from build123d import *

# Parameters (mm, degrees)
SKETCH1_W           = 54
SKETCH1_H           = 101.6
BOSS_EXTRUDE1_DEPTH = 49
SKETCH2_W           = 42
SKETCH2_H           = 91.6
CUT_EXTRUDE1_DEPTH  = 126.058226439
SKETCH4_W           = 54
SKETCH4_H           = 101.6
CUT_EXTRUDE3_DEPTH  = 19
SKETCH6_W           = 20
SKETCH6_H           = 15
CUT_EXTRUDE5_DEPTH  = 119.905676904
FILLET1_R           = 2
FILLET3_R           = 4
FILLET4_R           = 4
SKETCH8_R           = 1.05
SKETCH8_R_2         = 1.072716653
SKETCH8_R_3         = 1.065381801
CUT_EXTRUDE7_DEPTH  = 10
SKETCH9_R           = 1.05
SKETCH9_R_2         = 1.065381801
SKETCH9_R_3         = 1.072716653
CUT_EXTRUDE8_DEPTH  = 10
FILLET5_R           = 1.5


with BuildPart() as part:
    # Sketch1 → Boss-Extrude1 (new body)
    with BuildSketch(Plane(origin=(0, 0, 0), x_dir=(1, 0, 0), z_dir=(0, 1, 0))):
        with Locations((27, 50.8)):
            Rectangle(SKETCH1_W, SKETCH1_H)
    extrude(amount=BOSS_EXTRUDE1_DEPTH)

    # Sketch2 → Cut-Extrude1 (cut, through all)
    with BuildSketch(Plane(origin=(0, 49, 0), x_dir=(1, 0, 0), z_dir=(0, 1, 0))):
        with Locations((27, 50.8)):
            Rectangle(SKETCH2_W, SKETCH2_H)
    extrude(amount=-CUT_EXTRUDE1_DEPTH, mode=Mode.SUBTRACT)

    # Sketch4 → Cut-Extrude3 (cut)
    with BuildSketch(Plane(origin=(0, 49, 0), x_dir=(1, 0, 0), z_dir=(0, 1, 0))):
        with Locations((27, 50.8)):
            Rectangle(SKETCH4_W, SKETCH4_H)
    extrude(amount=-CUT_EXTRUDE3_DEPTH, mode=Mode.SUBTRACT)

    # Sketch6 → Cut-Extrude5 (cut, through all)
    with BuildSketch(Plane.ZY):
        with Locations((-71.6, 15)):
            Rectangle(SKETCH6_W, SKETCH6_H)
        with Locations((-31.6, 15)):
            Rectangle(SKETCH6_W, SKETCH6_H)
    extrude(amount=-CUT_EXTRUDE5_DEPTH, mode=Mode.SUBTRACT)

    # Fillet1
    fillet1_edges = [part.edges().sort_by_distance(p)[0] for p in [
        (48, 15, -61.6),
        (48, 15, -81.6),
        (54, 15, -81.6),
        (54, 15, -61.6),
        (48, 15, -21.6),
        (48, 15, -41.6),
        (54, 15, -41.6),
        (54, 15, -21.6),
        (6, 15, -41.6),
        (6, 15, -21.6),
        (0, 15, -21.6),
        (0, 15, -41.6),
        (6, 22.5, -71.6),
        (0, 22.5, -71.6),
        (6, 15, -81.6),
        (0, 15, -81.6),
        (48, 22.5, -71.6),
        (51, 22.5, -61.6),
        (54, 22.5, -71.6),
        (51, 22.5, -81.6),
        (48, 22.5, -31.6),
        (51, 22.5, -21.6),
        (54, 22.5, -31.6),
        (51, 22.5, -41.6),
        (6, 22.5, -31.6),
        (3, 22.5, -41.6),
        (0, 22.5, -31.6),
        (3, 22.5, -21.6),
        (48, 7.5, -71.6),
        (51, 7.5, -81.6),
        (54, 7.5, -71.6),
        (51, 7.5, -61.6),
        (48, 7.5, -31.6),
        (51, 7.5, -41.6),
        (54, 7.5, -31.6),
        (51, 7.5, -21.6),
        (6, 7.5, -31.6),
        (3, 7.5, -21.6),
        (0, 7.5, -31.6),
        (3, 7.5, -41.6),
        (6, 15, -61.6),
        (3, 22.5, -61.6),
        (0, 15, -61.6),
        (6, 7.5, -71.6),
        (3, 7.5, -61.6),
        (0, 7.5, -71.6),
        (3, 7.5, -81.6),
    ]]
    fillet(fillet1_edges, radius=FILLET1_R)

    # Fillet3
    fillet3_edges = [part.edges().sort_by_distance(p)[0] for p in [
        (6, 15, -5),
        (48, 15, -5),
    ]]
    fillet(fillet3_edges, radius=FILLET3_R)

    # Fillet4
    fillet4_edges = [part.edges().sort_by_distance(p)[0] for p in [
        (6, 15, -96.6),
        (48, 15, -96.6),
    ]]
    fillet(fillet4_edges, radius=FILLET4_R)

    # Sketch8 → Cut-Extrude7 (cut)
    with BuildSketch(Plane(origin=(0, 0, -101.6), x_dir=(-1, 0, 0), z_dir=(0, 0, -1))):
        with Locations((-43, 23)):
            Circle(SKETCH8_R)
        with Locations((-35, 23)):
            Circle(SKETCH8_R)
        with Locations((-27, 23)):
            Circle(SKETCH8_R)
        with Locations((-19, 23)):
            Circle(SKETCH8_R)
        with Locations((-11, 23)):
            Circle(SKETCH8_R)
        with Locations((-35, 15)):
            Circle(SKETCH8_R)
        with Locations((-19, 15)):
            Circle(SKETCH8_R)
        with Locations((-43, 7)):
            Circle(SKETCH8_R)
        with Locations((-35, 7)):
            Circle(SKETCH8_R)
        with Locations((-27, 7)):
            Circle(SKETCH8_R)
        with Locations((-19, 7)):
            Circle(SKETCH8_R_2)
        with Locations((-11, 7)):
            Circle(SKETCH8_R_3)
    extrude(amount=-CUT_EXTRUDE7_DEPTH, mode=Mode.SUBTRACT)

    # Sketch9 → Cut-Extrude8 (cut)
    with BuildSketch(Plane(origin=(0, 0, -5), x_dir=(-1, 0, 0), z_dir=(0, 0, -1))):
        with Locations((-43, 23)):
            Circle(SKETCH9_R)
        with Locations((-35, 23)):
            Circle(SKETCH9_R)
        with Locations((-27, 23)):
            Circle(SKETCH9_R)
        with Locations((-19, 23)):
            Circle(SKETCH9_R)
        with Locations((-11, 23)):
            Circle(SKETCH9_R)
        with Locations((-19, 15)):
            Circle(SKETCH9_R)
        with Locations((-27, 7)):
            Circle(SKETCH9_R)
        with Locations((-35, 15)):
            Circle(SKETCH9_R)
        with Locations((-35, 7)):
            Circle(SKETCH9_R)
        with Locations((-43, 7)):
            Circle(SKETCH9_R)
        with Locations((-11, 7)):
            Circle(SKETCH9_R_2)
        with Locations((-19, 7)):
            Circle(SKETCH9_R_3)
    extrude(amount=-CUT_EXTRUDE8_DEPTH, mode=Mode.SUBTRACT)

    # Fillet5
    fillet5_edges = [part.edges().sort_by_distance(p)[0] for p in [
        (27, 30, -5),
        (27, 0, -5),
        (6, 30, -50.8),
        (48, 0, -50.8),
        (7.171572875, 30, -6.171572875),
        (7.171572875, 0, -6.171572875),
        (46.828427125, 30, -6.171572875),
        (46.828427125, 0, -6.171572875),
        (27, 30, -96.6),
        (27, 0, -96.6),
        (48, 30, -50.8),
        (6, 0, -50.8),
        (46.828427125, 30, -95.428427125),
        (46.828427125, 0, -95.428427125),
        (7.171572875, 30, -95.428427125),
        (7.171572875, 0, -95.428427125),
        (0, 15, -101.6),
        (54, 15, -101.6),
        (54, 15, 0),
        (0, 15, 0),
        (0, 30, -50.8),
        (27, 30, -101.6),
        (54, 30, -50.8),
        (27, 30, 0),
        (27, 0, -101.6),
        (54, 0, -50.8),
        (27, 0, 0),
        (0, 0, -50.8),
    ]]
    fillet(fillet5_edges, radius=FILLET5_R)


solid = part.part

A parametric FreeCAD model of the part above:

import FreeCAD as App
import Part
import Sketcher
from FreeCAD import Vector
Q = App.Units.Quantity


def edges_at(feature, points):
    """Names of the edges that pass closest to the given points."""
    edges = feature.Shape.Edges
    near = lambda p: min(range(len(edges)), key=lambda i: edges[i].distToShape(Part.Vertex(*p))[0])
    return sorted({f"Edge{near(p) + 1}" for p in points})

doc = App.newDocument("Part")
params = doc.addObject("Spreadsheet::Sheet", "Params")
for row, (alias, value) in enumerate([
    ("sketch1_width", "54 mm"),
    ("sketch1_height", "101.6 mm"),
    ("pad1_length", "49 mm"),
    ("sketch2_width", "42 mm"),
    ("sketch2_height", "91.6 mm"),
    ("sketch3_width", "54 mm"),
    ("sketch3_height", "101.6 mm"),
    ("pocket2_length", "19 mm"),
    ("sketch4_width", "15 mm"),
    ("sketch4_height", "20 mm"),
    ("fillet_radius", "2 mm"),
    ("fillet2_radius", "4 mm"),
    ("fillet3_radius", "4 mm"),
    ("sketch5_diameter", "2.1 mm"),
    ("pocket4_length", "10 mm"),
    ("sketch6_diameter", "2.1 mm"),
    ("pocket5_length", "10 mm"),
    ("fillet4_radius", "1.5 mm"),
], start=1):
    params.set(f"A{row}", alias)
    params.set(f"B{row}", "=" + value)
    params.setAlias(f"B{row}", alias)

body = doc.addObject("PartDesign::Body", "Body")

sketch1 = body.newObject("Sketcher::SketchObject", "Sketch")
sketch1.AttachmentSupport = (doc.getObject("XZ_Plane"), [""])
sketch1.MapMode = "FlatFace"
sketch1.addGeometry(Part.LineSegment(Vector(0, -102, 0), Vector(0, 0, 0)), False)
sketch1.addGeometry(Part.LineSegment(Vector(0, 0, 0), Vector(54, 0, 0)), False)
sketch1.addGeometry(Part.LineSegment(Vector(54, 0, 0), Vector(54, -102, 0)), False)
sketch1.addGeometry(Part.LineSegment(Vector(54, -102, 0), Vector(0, -102, 0)), False)
sketch1.addConstraint(Sketcher.Constraint("Coincident", 0, 2, 1, 1))
sketch1.addConstraint(Sketcher.Constraint("Coincident", 1, 2, 2, 1))
sketch1.addConstraint(Sketcher.Constraint("Coincident", 2, 2, 3, 1))
sketch1.addConstraint(Sketcher.Constraint("Coincident", 3, 2, 0, 1))
sketch1.addConstraint(Sketcher.Constraint("Vertical", 0))
sketch1.addConstraint(Sketcher.Constraint("Horizontal", 1))
sketch1.addConstraint(Sketcher.Constraint("Vertical", 2))
sketch1.addConstraint(Sketcher.Constraint("Horizontal", 3))
sketch1.addConstraint(Sketcher.Constraint("Coincident", 0, 2, -1, 1))
sketch1.addConstraint(Sketcher.Constraint("DistanceX", 1, 1, 1, 2, Q("54 mm")))
sketch1.addConstraint(Sketcher.Constraint("DistanceY", 0, 1, 0, 2, Q("101.6 mm")))
sketch1.setExpression("Constraints[9]", "Params.sketch1_width")
sketch1.setExpression("Constraints[10]", "Params.sketch1_height")
pad1 = body.newObject("PartDesign::Pad", "Pad")
pad1.Profile = sketch1
pad1.setExpression("Length", "Params.pad1_length")
pad1.Reversed = True

sketch2 = body.newObject("Sketcher::SketchObject", "Sketch001")
sketch2.AttachmentSupport = (doc.getObject("XZ_Plane"), [""])
sketch2.MapMode = "FlatFace"
sketch2.AttachmentOffset = App.Placement(Vector(0, 0, -49), App.Rotation())
sketch2.addGeometry(Part.LineSegment(Vector(6, -97, 0), Vector(6, -5, 0)), False)
sketch2.addGeometry(Part.LineSegment(Vector(6, -5, 0), Vector(48, -5, 0)), False)
sketch2.addGeometry(Part.LineSegment(Vector(48, -5, 0), Vector(48, -97, 0)), False)
sketch2.addGeometry(Part.LineSegment(Vector(48, -97, 0), Vector(6, -97, 0)), False)
sketch2.addConstraint(Sketcher.Constraint("Coincident", 0, 2, 1, 1))
sketch2.addConstraint(Sketcher.Constraint("Coincident", 1, 2, 2, 1))
sketch2.addConstraint(Sketcher.Constraint("Coincident", 2, 2, 3, 1))
sketch2.addConstraint(Sketcher.Constraint("Coincident", 3, 2, 0, 1))
sketch2.addConstraint(Sketcher.Constraint("Vertical", 0))
sketch2.addConstraint(Sketcher.Constraint("Horizontal", 1))
sketch2.addConstraint(Sketcher.Constraint("Vertical", 2))
sketch2.addConstraint(Sketcher.Constraint("Horizontal", 3))
sketch2.addConstraint(Sketcher.Constraint("DistanceX", 1, 1, 1, 2, Q("42 mm")))
sketch2.addConstraint(Sketcher.Constraint("DistanceY", 0, 1, 0, 2, Q("91.6 mm")))
sketch2.addConstraint(Sketcher.Constraint("DistanceX", -1, 1, 0, 2, Q("6 mm")))
sketch2.addConstraint(Sketcher.Constraint("DistanceY", 0, 2, -1, 1, Q("5 mm")))
sketch2.setExpression("Constraints[8]", "Params.sketch2_width")
sketch2.setExpression("Constraints[9]", "Params.sketch2_height")
pocket1 = body.newObject("PartDesign::Pocket", "Pocket")
pocket1.Profile = sketch2
pocket1.Type = "ThroughAll"
pocket1.Reversed = True

sketch3 = body.newObject("Sketcher::SketchObject", "Sketch002")
sketch3.AttachmentSupport = (doc.getObject("XZ_Plane"), [""])
sketch3.MapMode = "FlatFace"
sketch3.AttachmentOffset = App.Placement(Vector(0, 0, -49), App.Rotation())
sketch3.addGeometry(Part.LineSegment(Vector(0, -102, 0), Vector(0, 0, 0)), False)
sketch3.addGeometry(Part.LineSegment(Vector(0, 0, 0), Vector(54, 0, 0)), False)
sketch3.addGeometry(Part.LineSegment(Vector(54, 0, 0), Vector(54, -102, 0)), False)
sketch3.addGeometry(Part.LineSegment(Vector(54, -102, 0), Vector(0, -102, 0)), False)
sketch3.addConstraint(Sketcher.Constraint("Coincident", 0, 2, 1, 1))
sketch3.addConstraint(Sketcher.Constraint("Coincident", 1, 2, 2, 1))
sketch3.addConstraint(Sketcher.Constraint("Coincident", 2, 2, 3, 1))
sketch3.addConstraint(Sketcher.Constraint("Coincident", 3, 2, 0, 1))
sketch3.addConstraint(Sketcher.Constraint("Vertical", 0))
sketch3.addConstraint(Sketcher.Constraint("Horizontal", 1))
sketch3.addConstraint(Sketcher.Constraint("Vertical", 2))
sketch3.addConstraint(Sketcher.Constraint("Horizontal", 3))
sketch3.addConstraint(Sketcher.Constraint("Coincident", 0, 2, -1, 1))
sketch3.addConstraint(Sketcher.Constraint("DistanceX", 1, 1, 1, 2, Q("54 mm")))
sketch3.addConstraint(Sketcher.Constraint("DistanceY", 0, 1, 0, 2, Q("101.6 mm")))
sketch3.setExpression("Constraints[9]", "Params.sketch3_width")
sketch3.setExpression("Constraints[10]", "Params.sketch3_height")
pocket2 = body.newObject("PartDesign::Pocket", "Pocket001")
pocket2.Profile = sketch3
pocket2.setExpression("Length", "Params.pocket2_length")
pocket2.Reversed = True

sketch4 = body.newObject("Sketcher::SketchObject", "Sketch003")
sketch4.AttachmentSupport = (doc.getObject("YZ_Plane"), [""])
sketch4.MapMode = "FlatFace"
sketch4.addGeometry(Part.LineSegment(Vector(22, -82, 0), Vector(8, -82, 0)), False)
sketch4.addGeometry(Part.LineSegment(Vector(8, -82, 0), Vector(8, -62, 0)), False)
sketch4.addGeometry(Part.LineSegment(Vector(8, -62, 0), Vector(22, -62, 0)), False)
sketch4.addGeometry(Part.LineSegment(Vector(22, -62, 0), Vector(22, -82, 0)), False)
sketch4.addGeometry(Part.LineSegment(Vector(22, -42, 0), Vector(8, -42, 0)), False)
sketch4.addGeometry(Part.LineSegment(Vector(8, -42, 0), Vector(8, -22, 0)), False)
sketch4.addGeometry(Part.LineSegment(Vector(8, -22, 0), Vector(22, -22, 0)), False)
sketch4.addGeometry(Part.LineSegment(Vector(22, -22, 0), Vector(22, -42, 0)), False)
sketch4.addConstraint(Sketcher.Constraint("Coincident", 0, 2, 1, 1))
sketch4.addConstraint(Sketcher.Constraint("Coincident", 1, 2, 2, 1))
sketch4.addConstraint(Sketcher.Constraint("Coincident", 2, 2, 3, 1))
sketch4.addConstraint(Sketcher.Constraint("Coincident", 3, 2, 0, 1))
sketch4.addConstraint(Sketcher.Constraint("Coincident", 4, 2, 5, 1))
sketch4.addConstraint(Sketcher.Constraint("Coincident", 5, 2, 6, 1))
sketch4.addConstraint(Sketcher.Constraint("Coincident", 6, 2, 7, 1))
sketch4.addConstraint(Sketcher.Constraint("Coincident", 7, 2, 4, 1))
sketch4.addConstraint(Sketcher.Constraint("Horizontal", 0))
sketch4.addConstraint(Sketcher.Constraint("Vertical", 1))
sketch4.addConstraint(Sketcher.Constraint("Horizontal", 2))
sketch4.addConstraint(Sketcher.Constraint("Vertical", 3))
sketch4.addConstraint(Sketcher.Constraint("Horizontal", 4))
sketch4.addConstraint(Sketcher.Constraint("Vertical", 5))
sketch4.addConstraint(Sketcher.Constraint("Horizontal", 6))
sketch4.addConstraint(Sketcher.Constraint("Vertical", 7))
sketch4.addConstraint(Sketcher.Constraint("Vertical", 1, 2, 4, 2))
sketch4.addConstraint(Sketcher.Constraint("Vertical", 3, 2, 6, 2))
sketch4.addConstraint(Sketcher.Constraint("Equal", 3, 5))
sketch4.addConstraint(Sketcher.Constraint("DistanceX", 0, 2, 0, 1, Q("15 mm")))
sketch4.addConstraint(Sketcher.Constraint("DistanceY", 1, 1, 1, 2, Q("20 mm")))
sketch4.addConstraint(Sketcher.Constraint("DistanceY", 1, 2, 4, 2, Q("20 mm")))
sketch4.addConstraint(Sketcher.Constraint("DistanceX", -1, 1, 0, 2, Q("7.5 mm")))
sketch4.addConstraint(Sketcher.Constraint("DistanceY", 0, 2, -1, 1, Q("81.6 mm")))
sketch4.setExpression("Constraints[19]", "Params.sketch4_width")
sketch4.setExpression("Constraints[20]", "Params.sketch4_height")
pocket3 = body.newObject("PartDesign::Pocket", "Pocket002")
pocket3.Profile = sketch4
pocket3.Type = "ThroughAll"
pocket3.Reversed = True
doc.recompute()

fillet = body.newObject("PartDesign::Fillet", "Fillet")
fillet.Base = (pocket3, edges_at(pocket3, [
    (48, 15, -61.6),
    (48, 15, -81.6),
    (54, 15, -81.6),
    (54, 15, -61.6),
    (48, 15, -21.6),
    (48, 15, -41.6),
    (54, 15, -41.6),
    (54, 15, -21.6),
    (6, 15, -41.6),
    (6, 15, -21.6),
    (0, 15, -21.6),
    (0, 15, -41.6),
    (6, 22.5, -71.6),
    (0, 22.5, -71.6),
    (6, 15, -81.6),
    (0, 15, -81.6),
    (48, 22.5, -71.6),
    (51, 22.5, -61.6),
    (54, 22.5, -71.6),
    (51, 22.5, -81.6),
    (48, 22.5, -31.6),
    (51, 22.5, -21.6),
    (54, 22.5, -31.6),
    (51, 22.5, -41.6),
    (6, 22.5, -31.6),
    (3, 22.5, -41.6),
    (0, 22.5, -31.6),
    (3, 22.5, -21.6),
    (48, 7.5, -71.6),
    (51, 7.5, -81.6),
    (54, 7.5, -71.6),
    (51, 7.5, -61.6),
    (48, 7.5, -31.6),
    (51, 7.5, -41.6),
    (54, 7.5, -31.6),
    (51, 7.5, -21.6),
    (6, 7.5, -31.6),
    (3, 7.5, -21.6),
    (0, 7.5, -31.6),
    (3, 7.5, -41.6),
    (6, 15, -61.6),
    (3, 22.5, -61.6),
    (0, 15, -61.6),
    (6, 7.5, -71.6),
    (3, 7.5, -61.6),
    (0, 7.5, -71.6),
    (3, 7.5, -81.6),
]))
fillet.setExpression("Radius", "Params.fillet_radius")
doc.recompute()

fillet2 = body.newObject("PartDesign::Fillet", "Fillet001")
fillet2.Base = (fillet, edges_at(fillet, [(6, 15, -5), (48, 15, -5)]))
fillet2.setExpression("Radius", "Params.fillet2_radius")
doc.recompute()

fillet3 = body.newObject("PartDesign::Fillet", "Fillet002")
fillet3.Base = (fillet2, edges_at(fillet2, [(6, 15, -96.6), (48, 15, -96.6)]))
fillet3.setExpression("Radius", "Params.fillet3_radius")

sketch5 = body.newObject("Sketcher::SketchObject", "Sketch004")
sketch5.AttachmentSupport = (doc.getObject("XY_Plane"), [""])
sketch5.MapMode = "FlatFace"
sketch5.AttachmentOffset = App.Placement(Vector(0, 0, -101.6), App.Rotation())
sketch5.addGeometry(Part.Circle(Vector(43, 23, 0), Vector(0, 0, 1), 1.1), False)
sketch5.addGeometry(Part.Circle(Vector(35, 23, 0), Vector(0, 0, 1), 1.1), False)
sketch5.addGeometry(Part.Circle(Vector(27, 23, 0), Vector(0, 0, 1), 1.1), False)
sketch5.addGeometry(Part.Circle(Vector(19, 23, 0), Vector(0, 0, 1), 1.1), False)
sketch5.addGeometry(Part.Circle(Vector(11, 23, 0), Vector(0, 0, 1), 1.1), False)
sketch5.addGeometry(Part.Circle(Vector(35, 15, 0), Vector(0, 0, 1), 1.1), False)
sketch5.addGeometry(Part.Circle(Vector(19, 15, 0), Vector(0, 0, 1), 1.1), False)
sketch5.addGeometry(Part.Circle(Vector(43, 7, 0), Vector(0, 0, 1), 1.1), False)
sketch5.addGeometry(Part.Circle(Vector(35, 7, 0), Vector(0, 0, 1), 1.1), False)
sketch5.addGeometry(Part.Circle(Vector(27, 7, 0), Vector(0, 0, 1), 1.1), False)
sketch5.addGeometry(Part.Circle(Vector(19, 7, 0), Vector(0, 0, 1), 1.1), False)
sketch5.addGeometry(Part.Circle(Vector(11, 7, 0), Vector(0, 0, 1), 1.1), False)
sketch5.addConstraint(Sketcher.Constraint("Equal", 0, 1))
sketch5.addConstraint(Sketcher.Constraint("Equal", 1, 2))
sketch5.addConstraint(Sketcher.Constraint("Equal", 2, 3))
sketch5.addConstraint(Sketcher.Constraint("Equal", 3, 4))
sketch5.addConstraint(Sketcher.Constraint("Equal", 4, 5))
sketch5.addConstraint(Sketcher.Constraint("Equal", 5, 6))
sketch5.addConstraint(Sketcher.Constraint("Equal", 6, 7))
sketch5.addConstraint(Sketcher.Constraint("Equal", 7, 8))
sketch5.addConstraint(Sketcher.Constraint("Equal", 8, 9))
sketch5.addConstraint(Sketcher.Constraint("Horizontal", 0, 3, 1, 3))
sketch5.addConstraint(Sketcher.Constraint("Horizontal", 1, 3, 2, 3))
sketch5.addConstraint(Sketcher.Constraint("Horizontal", 2, 3, 3, 3))
sketch5.addConstraint(Sketcher.Constraint("Horizontal", 3, 3, 4, 3))
sketch5.addConstraint(Sketcher.Constraint("Horizontal", 5, 3, 6, 3))
sketch5.addConstraint(Sketcher.Constraint("Horizontal", 7, 3, 8, 3))
sketch5.addConstraint(Sketcher.Constraint("Horizontal", 8, 3, 9, 3))
sketch5.addConstraint(Sketcher.Constraint("Horizontal", 9, 3, 10, 3))
sketch5.addConstraint(Sketcher.Constraint("Horizontal", 10, 3, 11, 3))
sketch5.addConstraint(Sketcher.Constraint("Vertical", 1, 3, 5, 3))
sketch5.addConstraint(Sketcher.Constraint("Vertical", 3, 3, 6, 3))
sketch5.addConstraint(Sketcher.Constraint("Vertical", 0, 3, 7, 3))
sketch5.addConstraint(Sketcher.Constraint("Vertical", 5, 3, 8, 3))
sketch5.addConstraint(Sketcher.Constraint("Vertical", 2, 3, 9, 3))
sketch5.addConstraint(Sketcher.Constraint("Vertical", 6, 3, 10, 3))
sketch5.addConstraint(Sketcher.Constraint("Vertical", 4, 3, 11, 3))
sketch5.addConstraint(Sketcher.Constraint("Diameter", 0, Q("2.1 mm")))
sketch5.addConstraint(Sketcher.Constraint("DistanceX", -1, 1, 0, 3, Q("43 mm")))
sketch5.addConstraint(Sketcher.Constraint("DistanceY", -1, 1, 0, 3, Q("23 mm")))
sketch5.addConstraint(Sketcher.Constraint("DistanceX", -1, 1, 1, 3, Q("35 mm")))
sketch5.addConstraint(Sketcher.Constraint("DistanceX", -1, 1, 2, 3, Q("27 mm")))
sketch5.addConstraint(Sketcher.Constraint("DistanceX", -1, 1, 3, 3, Q("19 mm")))
sketch5.addConstraint(Sketcher.Constraint("DistanceX", -1, 1, 4, 3, Q("11 mm")))
sketch5.addConstraint(Sketcher.Constraint("DistanceY", -1, 1, 5, 3, Q("15 mm")))
sketch5.addConstraint(Sketcher.Constraint("DistanceY", -1, 1, 7, 3, Q("7 mm")))
sketch5.addConstraint(Sketcher.Constraint("Diameter", 10, Q("2.145433 mm")))
sketch5.addConstraint(Sketcher.Constraint("Diameter", 11, Q("2.130764 mm")))
sketch5.setExpression("Constraints[25]", "Params.sketch5_diameter")
pocket4 = body.newObject("PartDesign::Pocket", "Pocket003")
pocket4.Profile = sketch5
pocket4.setExpression("Length", "Params.pocket4_length")
pocket4.Reversed = True

sketch6 = body.newObject("Sketcher::SketchObject", "Sketch005")
sketch6.AttachmentSupport = (doc.getObject("XY_Plane"), [""])
sketch6.MapMode = "FlatFace"
sketch6.AttachmentOffset = App.Placement(Vector(0, 0, -5), App.Rotation())
sketch6.addGeometry(Part.Circle(Vector(43, 23, 0), Vector(0, 0, 1), 1.1), False)
sketch6.addGeometry(Part.Circle(Vector(35, 23, 0), Vector(0, 0, 1), 1.1), False)
sketch6.addGeometry(Part.Circle(Vector(27, 23, 0), Vector(0, 0, 1), 1.1), False)
sketch6.addGeometry(Part.Circle(Vector(19, 23, 0), Vector(0, 0, 1), 1.1), False)
sketch6.addGeometry(Part.Circle(Vector(11, 23, 0), Vector(0, 0, 1), 1.1), False)
sketch6.addGeometry(Part.Circle(Vector(19, 15, 0), Vector(0, 0, 1), 1.1), False)
sketch6.addGeometry(Part.Circle(Vector(27, 7, 0), Vector(0, 0, 1), 1.1), False)
sketch6.addGeometry(Part.Circle(Vector(35, 15, 0), Vector(0, 0, 1), 1.1), False)
sketch6.addGeometry(Part.Circle(Vector(35, 7, 0), Vector(0, 0, 1), 1.1), False)
sketch6.addGeometry(Part.Circle(Vector(43, 7, 0), Vector(0, 0, 1), 1.1), False)
sketch6.addGeometry(Part.Circle(Vector(11, 7, 0), Vector(0, 0, 1), 1.1), False)
sketch6.addGeometry(Part.Circle(Vector(19, 7, 0), Vector(0, 0, 1), 1.1), False)
sketch6.addConstraint(Sketcher.Constraint("Equal", 0, 1))
sketch6.addConstraint(Sketcher.Constraint("Equal", 1, 2))
sketch6.addConstraint(Sketcher.Constraint("Equal", 2, 3))
sketch6.addConstraint(Sketcher.Constraint("Equal", 3, 4))
sketch6.addConstraint(Sketcher.Constraint("Equal", 4, 5))
sketch6.addConstraint(Sketcher.Constraint("Equal", 5, 6))
sketch6.addConstraint(Sketcher.Constraint("Equal", 6, 7))
sketch6.addConstraint(Sketcher.Constraint("Equal", 7, 8))
sketch6.addConstraint(Sketcher.Constraint("Equal", 8, 9))
sketch6.addConstraint(Sketcher.Constraint("Horizontal", 0, 3, 1, 3))
sketch6.addConstraint(Sketcher.Constraint("Horizontal", 1, 3, 2, 3))
sketch6.addConstraint(Sketcher.Constraint("Horizontal", 2, 3, 3, 3))
sketch6.addConstraint(Sketcher.Constraint("Horizontal", 3, 3, 4, 3))
sketch6.addConstraint(Sketcher.Constraint("Horizontal", 5, 3, 7, 3))
sketch6.addConstraint(Sketcher.Constraint("Horizontal", 6, 3, 8, 3))
sketch6.addConstraint(Sketcher.Constraint("Horizontal", 8, 3, 9, 3))
sketch6.addConstraint(Sketcher.Constraint("Horizontal", 9, 3, 10, 3))
sketch6.addConstraint(Sketcher.Constraint("Horizontal", 10, 3, 11, 3))
sketch6.addConstraint(Sketcher.Constraint("Vertical", 3, 3, 5, 3))
sketch6.addConstraint(Sketcher.Constraint("Vertical", 2, 3, 6, 3))
sketch6.addConstraint(Sketcher.Constraint("Vertical", 1, 3, 7, 3))
sketch6.addConstraint(Sketcher.Constraint("Vertical", 7, 3, 8, 3))
sketch6.addConstraint(Sketcher.Constraint("Vertical", 0, 3, 9, 3))
sketch6.addConstraint(Sketcher.Constraint("Vertical", 4, 3, 10, 3))
sketch6.addConstraint(Sketcher.Constraint("Vertical", 5, 3, 11, 3))
sketch6.addConstraint(Sketcher.Constraint("Diameter", 0, Q("2.1 mm")))
sketch6.addConstraint(Sketcher.Constraint("DistanceX", -1, 1, 0, 3, Q("43 mm")))
sketch6.addConstraint(Sketcher.Constraint("DistanceY", -1, 1, 0, 3, Q("23 mm")))
sketch6.addConstraint(Sketcher.Constraint("DistanceX", -1, 1, 1, 3, Q("35 mm")))
sketch6.addConstraint(Sketcher.Constraint("DistanceX", -1, 1, 2, 3, Q("27 mm")))
sketch6.addConstraint(Sketcher.Constraint("DistanceX", -1, 1, 3, 3, Q("19 mm")))
sketch6.addConstraint(Sketcher.Constraint("DistanceX", -1, 1, 4, 3, Q("11 mm")))
sketch6.addConstraint(Sketcher.Constraint("DistanceY", -1, 1, 5, 3, Q("15 mm")))
sketch6.addConstraint(Sketcher.Constraint("DistanceY", -1, 1, 6, 3, Q("7 mm")))
sketch6.addConstraint(Sketcher.Constraint("Diameter", 10, Q("2.130764 mm")))
sketch6.addConstraint(Sketcher.Constraint("Diameter", 11, Q("2.145433 mm")))
sketch6.setExpression("Constraints[25]", "Params.sketch6_diameter")
pocket5 = body.newObject("PartDesign::Pocket", "Pocket004")
pocket5.Profile = sketch6
pocket5.setExpression("Length", "Params.pocket5_length")
pocket5.Reversed = True
doc.recompute()

fillet4 = body.newObject("PartDesign::Fillet", "Fillet003")
fillet4.Base = (pocket5, edges_at(pocket5, [
    (27, 30, -5),
    (27, 0, -5),
    (6, 30, -50.8),
    (48, 0, -50.8),
    (7.172, 30, -6.172),
    (7.172, 0, -6.172),
    (46.828, 30, -6.172),
    (46.828, 0, -6.172),
    (27, 30, -96.6),
    (27, 0, -96.6),
    (48, 30, -50.8),
    (6, 0, -50.8),
    (46.828, 30, -95.428),
    (46.828, 0, -95.428),
    (7.172, 30, -95.428),
    (7.172, 0, -95.428),
    (0, 15, -101.6),
    (54, 15, -101.6),
    (54, 15, 0),
    (0, 15, 0),
    (0, 30, -50.8),
    (27, 30, -101.6),
    (54, 30, -50.8),
    (27, 30, 0),
    (27, 0, -101.6),
    (54, 0, -50.8),
    (27, 0, 0),
    (0, 0, -50.8),
]))
fillet4.setExpression("Radius", "Params.fillet4_radius")

doc.recompute()
